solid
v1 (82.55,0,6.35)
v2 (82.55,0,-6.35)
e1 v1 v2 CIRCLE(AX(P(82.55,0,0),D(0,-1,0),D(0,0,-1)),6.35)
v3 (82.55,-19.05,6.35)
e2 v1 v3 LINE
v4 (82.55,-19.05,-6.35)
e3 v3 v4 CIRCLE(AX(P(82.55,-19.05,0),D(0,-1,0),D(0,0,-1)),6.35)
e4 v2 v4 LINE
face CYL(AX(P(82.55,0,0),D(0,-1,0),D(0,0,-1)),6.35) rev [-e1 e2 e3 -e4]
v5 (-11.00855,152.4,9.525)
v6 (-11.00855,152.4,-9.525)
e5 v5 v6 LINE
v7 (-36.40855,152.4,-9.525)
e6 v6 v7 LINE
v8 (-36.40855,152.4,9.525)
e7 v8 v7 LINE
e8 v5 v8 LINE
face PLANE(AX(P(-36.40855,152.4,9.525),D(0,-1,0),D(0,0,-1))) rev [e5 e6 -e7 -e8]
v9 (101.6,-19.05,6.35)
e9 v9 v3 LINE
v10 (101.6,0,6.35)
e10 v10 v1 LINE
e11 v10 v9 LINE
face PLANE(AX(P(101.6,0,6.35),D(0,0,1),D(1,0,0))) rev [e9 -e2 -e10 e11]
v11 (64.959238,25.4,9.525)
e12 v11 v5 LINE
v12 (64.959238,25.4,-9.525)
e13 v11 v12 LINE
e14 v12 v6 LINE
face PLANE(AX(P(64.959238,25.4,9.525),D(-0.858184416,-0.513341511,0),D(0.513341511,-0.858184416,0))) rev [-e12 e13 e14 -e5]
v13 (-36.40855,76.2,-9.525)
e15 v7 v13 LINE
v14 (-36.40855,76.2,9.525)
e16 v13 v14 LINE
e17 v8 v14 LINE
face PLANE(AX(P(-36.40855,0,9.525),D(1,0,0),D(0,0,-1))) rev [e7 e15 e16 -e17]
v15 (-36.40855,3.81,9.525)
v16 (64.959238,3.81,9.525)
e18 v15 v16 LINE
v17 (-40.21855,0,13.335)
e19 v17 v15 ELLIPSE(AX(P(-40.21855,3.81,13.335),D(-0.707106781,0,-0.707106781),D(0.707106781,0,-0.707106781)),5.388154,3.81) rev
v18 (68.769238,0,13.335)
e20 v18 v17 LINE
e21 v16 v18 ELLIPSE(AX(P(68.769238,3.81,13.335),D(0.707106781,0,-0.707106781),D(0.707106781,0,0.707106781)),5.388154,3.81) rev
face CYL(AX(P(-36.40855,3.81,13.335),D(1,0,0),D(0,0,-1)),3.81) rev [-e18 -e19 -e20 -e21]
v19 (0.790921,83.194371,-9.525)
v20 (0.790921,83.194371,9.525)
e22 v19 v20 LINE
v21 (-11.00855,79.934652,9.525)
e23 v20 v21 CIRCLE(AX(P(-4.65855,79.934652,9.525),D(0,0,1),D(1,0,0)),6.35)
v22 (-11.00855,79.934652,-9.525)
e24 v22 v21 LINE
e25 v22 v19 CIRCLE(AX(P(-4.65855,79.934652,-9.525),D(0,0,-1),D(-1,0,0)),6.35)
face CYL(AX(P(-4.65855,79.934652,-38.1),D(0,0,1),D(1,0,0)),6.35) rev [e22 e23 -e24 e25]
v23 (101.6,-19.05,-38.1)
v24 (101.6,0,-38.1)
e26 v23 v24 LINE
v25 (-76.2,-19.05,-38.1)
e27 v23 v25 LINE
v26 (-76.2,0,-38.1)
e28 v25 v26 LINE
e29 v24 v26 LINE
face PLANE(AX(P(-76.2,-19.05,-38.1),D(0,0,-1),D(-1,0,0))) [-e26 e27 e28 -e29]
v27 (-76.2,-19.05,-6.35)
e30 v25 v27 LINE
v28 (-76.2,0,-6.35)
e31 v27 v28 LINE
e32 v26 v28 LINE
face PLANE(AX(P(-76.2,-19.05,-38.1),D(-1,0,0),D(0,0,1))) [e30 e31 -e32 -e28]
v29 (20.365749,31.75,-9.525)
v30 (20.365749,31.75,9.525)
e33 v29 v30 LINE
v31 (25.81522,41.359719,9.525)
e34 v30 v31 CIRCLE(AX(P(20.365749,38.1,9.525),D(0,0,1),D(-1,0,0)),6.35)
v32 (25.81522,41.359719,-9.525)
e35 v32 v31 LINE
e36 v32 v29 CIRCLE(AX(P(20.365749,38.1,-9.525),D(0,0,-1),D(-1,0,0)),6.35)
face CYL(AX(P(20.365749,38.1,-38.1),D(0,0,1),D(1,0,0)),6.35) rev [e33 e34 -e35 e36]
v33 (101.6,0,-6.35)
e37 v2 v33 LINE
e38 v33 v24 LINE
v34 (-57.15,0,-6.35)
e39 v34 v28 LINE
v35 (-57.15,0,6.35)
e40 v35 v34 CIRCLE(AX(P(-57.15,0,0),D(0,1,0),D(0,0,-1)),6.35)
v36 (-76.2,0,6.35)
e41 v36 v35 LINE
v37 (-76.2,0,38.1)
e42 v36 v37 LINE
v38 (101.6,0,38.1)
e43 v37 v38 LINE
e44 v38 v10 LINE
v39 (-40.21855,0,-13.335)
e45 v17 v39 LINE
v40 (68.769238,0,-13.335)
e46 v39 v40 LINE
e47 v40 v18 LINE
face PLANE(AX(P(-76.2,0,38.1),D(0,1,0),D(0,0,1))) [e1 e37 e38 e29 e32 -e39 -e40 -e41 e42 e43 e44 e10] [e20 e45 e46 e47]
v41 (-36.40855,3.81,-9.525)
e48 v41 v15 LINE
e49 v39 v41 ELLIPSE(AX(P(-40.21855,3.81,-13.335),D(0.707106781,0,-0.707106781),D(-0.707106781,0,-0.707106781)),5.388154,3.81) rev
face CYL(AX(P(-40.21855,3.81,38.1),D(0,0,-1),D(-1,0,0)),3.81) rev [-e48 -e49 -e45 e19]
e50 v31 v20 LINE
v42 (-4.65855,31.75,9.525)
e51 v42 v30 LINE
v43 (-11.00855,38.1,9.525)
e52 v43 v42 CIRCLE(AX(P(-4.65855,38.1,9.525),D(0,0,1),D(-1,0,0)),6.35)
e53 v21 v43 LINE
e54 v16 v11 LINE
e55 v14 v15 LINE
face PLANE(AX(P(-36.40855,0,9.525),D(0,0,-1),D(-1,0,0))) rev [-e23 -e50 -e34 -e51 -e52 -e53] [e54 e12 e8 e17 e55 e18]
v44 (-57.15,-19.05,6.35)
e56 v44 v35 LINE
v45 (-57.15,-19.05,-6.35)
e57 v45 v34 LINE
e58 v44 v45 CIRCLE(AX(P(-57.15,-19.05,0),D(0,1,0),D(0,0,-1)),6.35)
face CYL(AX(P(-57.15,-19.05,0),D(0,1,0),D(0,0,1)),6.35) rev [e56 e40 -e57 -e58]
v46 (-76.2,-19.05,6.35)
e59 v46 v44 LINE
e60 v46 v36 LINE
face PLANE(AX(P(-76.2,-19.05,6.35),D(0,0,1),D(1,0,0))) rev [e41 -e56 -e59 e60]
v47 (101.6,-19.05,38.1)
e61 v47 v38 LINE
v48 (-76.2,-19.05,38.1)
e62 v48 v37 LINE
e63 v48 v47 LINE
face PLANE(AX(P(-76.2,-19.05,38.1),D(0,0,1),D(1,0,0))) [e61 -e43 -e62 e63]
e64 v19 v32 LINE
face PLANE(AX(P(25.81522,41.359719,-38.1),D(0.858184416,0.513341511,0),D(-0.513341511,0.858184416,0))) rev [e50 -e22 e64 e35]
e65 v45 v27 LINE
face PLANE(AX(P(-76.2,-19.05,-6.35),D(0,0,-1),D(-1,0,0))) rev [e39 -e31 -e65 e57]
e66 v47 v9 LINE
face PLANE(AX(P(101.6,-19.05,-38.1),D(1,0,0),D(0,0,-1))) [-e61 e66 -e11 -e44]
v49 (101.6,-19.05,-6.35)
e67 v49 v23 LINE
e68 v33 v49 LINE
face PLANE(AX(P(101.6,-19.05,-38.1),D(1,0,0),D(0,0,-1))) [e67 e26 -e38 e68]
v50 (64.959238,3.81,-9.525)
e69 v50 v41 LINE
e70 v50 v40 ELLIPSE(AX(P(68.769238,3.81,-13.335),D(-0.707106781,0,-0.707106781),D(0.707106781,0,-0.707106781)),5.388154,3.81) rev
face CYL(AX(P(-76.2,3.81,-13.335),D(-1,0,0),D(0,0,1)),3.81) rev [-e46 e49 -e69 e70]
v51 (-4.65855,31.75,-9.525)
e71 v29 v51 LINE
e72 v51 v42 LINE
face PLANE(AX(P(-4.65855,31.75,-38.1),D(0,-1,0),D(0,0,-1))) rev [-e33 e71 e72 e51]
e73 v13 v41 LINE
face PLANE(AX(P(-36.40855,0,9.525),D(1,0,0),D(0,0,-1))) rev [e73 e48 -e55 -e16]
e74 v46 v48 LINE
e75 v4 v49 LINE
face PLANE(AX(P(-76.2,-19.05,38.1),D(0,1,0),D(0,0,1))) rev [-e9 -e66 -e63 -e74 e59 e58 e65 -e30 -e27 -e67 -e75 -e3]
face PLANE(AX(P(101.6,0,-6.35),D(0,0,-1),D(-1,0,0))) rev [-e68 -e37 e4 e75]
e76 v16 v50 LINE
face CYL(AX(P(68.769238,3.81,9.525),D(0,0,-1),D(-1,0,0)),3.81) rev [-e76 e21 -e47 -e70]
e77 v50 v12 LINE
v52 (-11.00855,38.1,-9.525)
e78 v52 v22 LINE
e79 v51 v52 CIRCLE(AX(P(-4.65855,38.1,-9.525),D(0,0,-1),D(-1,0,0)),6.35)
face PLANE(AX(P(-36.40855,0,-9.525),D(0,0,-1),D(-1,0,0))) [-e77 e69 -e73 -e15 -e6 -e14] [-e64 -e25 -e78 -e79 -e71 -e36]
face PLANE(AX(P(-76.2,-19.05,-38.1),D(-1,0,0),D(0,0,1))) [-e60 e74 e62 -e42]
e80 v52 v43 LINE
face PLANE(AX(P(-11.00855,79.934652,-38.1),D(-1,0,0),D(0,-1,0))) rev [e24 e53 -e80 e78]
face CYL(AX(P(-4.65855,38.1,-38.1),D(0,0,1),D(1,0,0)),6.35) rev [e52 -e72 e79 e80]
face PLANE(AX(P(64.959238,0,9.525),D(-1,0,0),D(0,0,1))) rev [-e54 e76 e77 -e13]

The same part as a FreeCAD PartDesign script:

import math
import FreeCAD as App
import Part
import Sketcher
Q = App.Units.Quantity


def edges_at(feature, points):
    """Names of the edges that pass closest to the given points."""
    edges = feature.Shape.Edges
    near = lambda p: min(range(len(edges)), key=lambda i: edges[i].distToShape(Part.Vertex(*p))[0])
    return sorted({f"Edge{near(p) + 1}" for p in points})

doc = App.newDocument("Part")
body = doc.addObject("PartDesign::Body", "Body")

# Sketch on XZ plane
sketch1 = doc.addObject("Sketcher::SketchObject", "Sketch")
body.addObject(sketch1)
sketch1.AttachmentSupport = (doc.XZ_Plane, [""])
sketch1.MapMode = "FlatFace"
sketch1.addGeometry([
    Part.LineSegment(App.Vector(-76, -38, 0), App.Vector(-76, 38, 0)),
    Part.LineSegment(App.Vector(-76, 38, 0), App.Vector(102, 38, 0)),
    Part.LineSegment(App.Vector(102, 38, 0), App.Vector(102, -38, 0)),
    Part.LineSegment(App.Vector(102, -38, 0), App.Vector(-76, -38, 0)),
], False)
sketch1.addConstraint([
    Sketcher.Constraint("Coincident", 0, 2, 1, 1),
    Sketcher.Constraint("Coincident", 1, 2, 2, 1),
    Sketcher.Constraint("Coincident", 2, 2, 3, 1),
    Sketcher.Constraint("Coincident", 3, 2, 0, 1),
    Sketcher.Constraint("Vertical", 0),
    Sketcher.Constraint("Horizontal", 1),
    Sketcher.Constraint("Vertical", 2),
    Sketcher.Constraint("Horizontal", 3),
    Sketcher.Constraint("DistanceX", 1, 1, 1, 2, Q("7 in")),
    Sketcher.Constraint("DistanceY", 0, 1, 0, 2, Q("3 in")),
    Sketcher.Constraint("DistanceX", 0, 2, -1, 1, Q("3 in")),
    Sketcher.Constraint("DistanceY", -1, 1, 0, 2, Q("1.5 in")),
])
pad1 = doc.addObject("PartDesign::Pad", "Pad")
body.addObject(pad1)
pad1.Profile = sketch1
pad1.Length = Q("0.75 in")

# Sketch on XZ plane
sketch2 = doc.addObject("Sketcher::SketchObject", "Sketch001")
body.addObject(sketch2)
sketch2.AttachmentSupport = (doc.XZ_Plane, [""])
sketch2.MapMode = "FlatFace"
sketch2.addGeometry([
    Part.LineSegment(App.Vector(-57, -6, 0), App.Vector(-76, -6, 0)),
    Part.LineSegment(App.Vector(-76, -6, 0), App.Vector(-76, 6, 0)),
    Part.LineSegment(App.Vector(-76, 6, 0), App.Vector(-57, 6, 0)),
    Part.ArcOfCircle(Part.Circle(App.Vector(-57, 0, 0), App.Vector(0, 0, 1), 6), math.radians(-90), math.radians(90)),
], False)
sketch2.addConstraint([
    Sketcher.Constraint("Coincident", 0, 2, 1, 1),
    Sketcher.Constraint("Coincident", 1, 2, 2, 1),
    Sketcher.Constraint("Tangent", 2, 2, 3, 2),
    Sketcher.Constraint("Tangent", 3, 1, 0, 1),
    Sketcher.Constraint("Horizontal", 0),
    Sketcher.Constraint("Vertical", 1),
    Sketcher.Constraint("Horizontal", 2),
    Sketcher.Constraint("PointOnObject", 3, 3, -1),
    Sketcher.Constraint("Radius", 3, Q("0.25 in")),
    Sketcher.Constraint("DistanceX", 0, 2, -1, 1, Q("3 in")),
    Sketcher.Constraint("DistanceX", 0, 2, 0, 1, Q("0.75 in")),
])
pocket1 = doc.addObject("PartDesign::Pocket", "Pocket")
body.addObject(pocket1)
pocket1.Profile = sketch2
pocket1.Type = "ThroughAll"
pocket1.Reversed = True

# Sketch on XZ plane
sketch3 = doc.addObject("Sketcher::SketchObject", "Sketch002")
body.addObject(sketch3)
sketch3.AttachmentSupport = (doc.XZ_Plane, [""])
sketch3.MapMode = "FlatFace"
sketch3.AttachmentOffset = App.Placement(App.Vector(0, 0, 0.75 * 25.4), App.Rotation())
sketch3.addGeometry([
    Part.LineSegment(App.Vector(102, 6, 0), App.Vector(83, 6, 0)),
    Part.ArcOfCircle(Part.Circle(App.Vector(83, 0, 0), App.Vector(0, 0, 1), 6), math.radians(90), math.radians(270)),
    Part.LineSegment(App.Vector(83, -6, 0), App.Vector(102, -6, 0)),
    Part.LineSegment(App.Vector(102, -6, 0), App.Vector(102, 6, 0)),
], False)
sketch3.addConstraint([
    Sketcher.Constraint("Tangent", 0, 2, 1, 1),
    Sketcher.Constraint("Tangent", 1, 2, 2, 1),
    Sketcher.Constraint("Coincident", 2, 2, 3, 1),
    Sketcher.Constraint("Coincident", 3, 2, 0, 1),
    Sketcher.Constraint("Horizontal", 0),
    Sketcher.Constraint("Horizontal", 2),
    Sketcher.Constraint("Vertical", 3),
    Sketcher.Constraint("PointOnObject", 1, 3, -1),
    Sketcher.Constraint("Radius", 1, Q("0.25 in")),
    Sketcher.Constraint("DistanceX", -1, 1, 2, 2, Q("4 in")),
    Sketcher.Constraint("DistanceX", 0, 2, 0, 1, Q("0.75 in")),
])
pocket2 = doc.addObject("PartDesign::Pocket", "Pocket001")
body.addObject(pocket2)
pocket2.Profile = sketch3
pocket2.Type = "ThroughAll"

# Sketch on XY plane
sketch4 = doc.addObject("Sketcher::SketchObject", "Sketch003")
body.addObject(sketch4)
sketch4.AttachmentSupport = (doc.XY_Plane, [""])
sketch4.MapMode = "FlatFace"
sketch4.addGeometry([
    Part.LineSegment(App.Vector(-36, 152, 0), App.Vector(-36, 0, 0)),  # 0
    Part.LineSegment(App.Vector(-36, 0, 0), App.Vector(65, 0, 0)),  # 1
    Part.LineSegment(App.Vector(65, 0, 0), App.Vector(65, 25, 0)),  # 2
    Part.LineSegment(App.Vector(65, 25, 0), App.Vector(-11, 152, 0)),  # 3
    Part.LineSegment(App.Vector(-11, 152, 0), App.Vector(-36, 152, 0)),  # 4
], False)
sketch4.addConstraint([
    Sketcher.Constraint("Coincident", 0, 2, 1, 1),
    Sketcher.Constraint("Coincident", 1, 2, 2, 1),
    Sketcher.Constraint("Coincident", 2, 2, 3, 1),
    Sketcher.Constraint("Coincident", 3, 2, 4, 1),
    Sketcher.Constraint("Coincident", 4, 2, 0, 1),
    Sketcher.Constraint("Vertical", 0),
    Sketcher.Constraint("Horizontal", 1),
    Sketcher.Constraint("Vertical", 2),
    Sketcher.Constraint("Horizontal", 4),
    Sketcher.Constraint("PointOnObject", 0, 2, -1),
    Sketcher.Constraint("Equal", 4, 2),
    Sketcher.Constraint("DistanceX", 4, 2, 4, 1, Q("1 in")),
    Sketcher.Constraint("DistanceY", 0, 2, 0, 1, Q("6 in")),
    Sketcher.Constraint("DistanceX", 1, 1, 1, 2, 101.367788),
    Sketcher.Constraint("DistanceX", 0, 2, -1, 1, 36.40855),
])
pad2 = doc.addObject("PartDesign::Pad", "Pad001")
body.addObject(pad2)
pad2.Profile = sketch4
pad2.Length = Q("0.75 in")
pad2.Midplane = True

# Sketch on XY plane
sketch5 = doc.addObject("Sketcher::SketchObject", "Sketch004")
body.addObject(sketch5)
sketch5.AttachmentSupport = (doc.XY_Plane, [""])
sketch5.MapMode = "FlatFace"
sketch5.AttachmentOffset = App.Placement(App.Vector(0, 0, 0.375 * 25.4), App.Rotation())
sketch5.addGeometry([
    Part.LineSegment(App.Vector(-5, 32, 0), App.Vector(20, 32, 0)),  # 0
    Part.ArcOfCircle(Part.Circle(App.Vector(20, 38, 0), App.Vector(0, 0, 1), 6), math.radians(-90), math.radians(31)),  # 1
    Part.LineSegment(App.Vector(26, 41, 0), App.Vector(1, 83, 0)),  # 2
    Part.ArcOfCircle(Part.Circle(App.Vector(-5, 80, 0), App.Vector(0, 0, 1), 6), math.radians(31), math.radians(180)),  # 3
    Part.LineSegment(App.Vector(-11, 80, 0), App.Vector(-11, 38, 0)),  # 4
    Part.ArcOfCircle(Part.Circle(App.Vector(-5, 38, 0), App.Vector(0, 0, 1), 6), math.radians(180), math.radians(270)),  # 5
], False)
sketch5.addConstraint([
    Sketcher.Constraint("Tangent", 0, 2, 1, 1),
    Sketcher.Constraint("Tangent", 1, 2, 2, 1),
    Sketcher.Constraint("Tangent", 2, 2, 3, 1),
    Sketcher.Constraint("Tangent", 3, 2, 4, 1),
    Sketcher.Constraint("Tangent", 4, 2, 5, 1),
    Sketcher.Constraint("Tangent", 5, 2, 0, 1),
    Sketcher.Constraint("Horizontal", 0),
    Sketcher.Constraint("Vertical", 4),
    Sketcher.Constraint("Equal", 1, 3),
    Sketcher.Constraint("Equal", 3, 5),
    Sketcher.Constraint("Radius", 1, Q("0.25 in")),
    Sketcher.Constraint("DistanceY", -1, 1, 1, 3, Q("1.5 in")),
    Sketcher.Constraint("DistanceX", 0, 1, 0, 2, 25.024299),
    Sketcher.Constraint("Distance", 2, 48.747858),
    Sketcher.Constraint("DistanceX", -1, 1, 1, 3, 20.365749),
])
pocket3 = doc.addObject("PartDesign::Pocket", "Pocket002")
body.addObject(pocket3)
pocket3.Profile = sketch5
pocket3.Type = "ThroughAll"
doc.recompute()

fillet = doc.addObject("PartDesign::Fillet", "Fillet")
body.addObject(fillet)
fillet.Base = (pocket3, edges_at(pocket3, [
    (14.275, 0, -9.525),
    (-36.409, 0, 0),
    (64.959, 0, 0),
    (14.275, 0, 9.525),
]))
fillet.Radius = Q("0.15 in")

doc.recompute()
